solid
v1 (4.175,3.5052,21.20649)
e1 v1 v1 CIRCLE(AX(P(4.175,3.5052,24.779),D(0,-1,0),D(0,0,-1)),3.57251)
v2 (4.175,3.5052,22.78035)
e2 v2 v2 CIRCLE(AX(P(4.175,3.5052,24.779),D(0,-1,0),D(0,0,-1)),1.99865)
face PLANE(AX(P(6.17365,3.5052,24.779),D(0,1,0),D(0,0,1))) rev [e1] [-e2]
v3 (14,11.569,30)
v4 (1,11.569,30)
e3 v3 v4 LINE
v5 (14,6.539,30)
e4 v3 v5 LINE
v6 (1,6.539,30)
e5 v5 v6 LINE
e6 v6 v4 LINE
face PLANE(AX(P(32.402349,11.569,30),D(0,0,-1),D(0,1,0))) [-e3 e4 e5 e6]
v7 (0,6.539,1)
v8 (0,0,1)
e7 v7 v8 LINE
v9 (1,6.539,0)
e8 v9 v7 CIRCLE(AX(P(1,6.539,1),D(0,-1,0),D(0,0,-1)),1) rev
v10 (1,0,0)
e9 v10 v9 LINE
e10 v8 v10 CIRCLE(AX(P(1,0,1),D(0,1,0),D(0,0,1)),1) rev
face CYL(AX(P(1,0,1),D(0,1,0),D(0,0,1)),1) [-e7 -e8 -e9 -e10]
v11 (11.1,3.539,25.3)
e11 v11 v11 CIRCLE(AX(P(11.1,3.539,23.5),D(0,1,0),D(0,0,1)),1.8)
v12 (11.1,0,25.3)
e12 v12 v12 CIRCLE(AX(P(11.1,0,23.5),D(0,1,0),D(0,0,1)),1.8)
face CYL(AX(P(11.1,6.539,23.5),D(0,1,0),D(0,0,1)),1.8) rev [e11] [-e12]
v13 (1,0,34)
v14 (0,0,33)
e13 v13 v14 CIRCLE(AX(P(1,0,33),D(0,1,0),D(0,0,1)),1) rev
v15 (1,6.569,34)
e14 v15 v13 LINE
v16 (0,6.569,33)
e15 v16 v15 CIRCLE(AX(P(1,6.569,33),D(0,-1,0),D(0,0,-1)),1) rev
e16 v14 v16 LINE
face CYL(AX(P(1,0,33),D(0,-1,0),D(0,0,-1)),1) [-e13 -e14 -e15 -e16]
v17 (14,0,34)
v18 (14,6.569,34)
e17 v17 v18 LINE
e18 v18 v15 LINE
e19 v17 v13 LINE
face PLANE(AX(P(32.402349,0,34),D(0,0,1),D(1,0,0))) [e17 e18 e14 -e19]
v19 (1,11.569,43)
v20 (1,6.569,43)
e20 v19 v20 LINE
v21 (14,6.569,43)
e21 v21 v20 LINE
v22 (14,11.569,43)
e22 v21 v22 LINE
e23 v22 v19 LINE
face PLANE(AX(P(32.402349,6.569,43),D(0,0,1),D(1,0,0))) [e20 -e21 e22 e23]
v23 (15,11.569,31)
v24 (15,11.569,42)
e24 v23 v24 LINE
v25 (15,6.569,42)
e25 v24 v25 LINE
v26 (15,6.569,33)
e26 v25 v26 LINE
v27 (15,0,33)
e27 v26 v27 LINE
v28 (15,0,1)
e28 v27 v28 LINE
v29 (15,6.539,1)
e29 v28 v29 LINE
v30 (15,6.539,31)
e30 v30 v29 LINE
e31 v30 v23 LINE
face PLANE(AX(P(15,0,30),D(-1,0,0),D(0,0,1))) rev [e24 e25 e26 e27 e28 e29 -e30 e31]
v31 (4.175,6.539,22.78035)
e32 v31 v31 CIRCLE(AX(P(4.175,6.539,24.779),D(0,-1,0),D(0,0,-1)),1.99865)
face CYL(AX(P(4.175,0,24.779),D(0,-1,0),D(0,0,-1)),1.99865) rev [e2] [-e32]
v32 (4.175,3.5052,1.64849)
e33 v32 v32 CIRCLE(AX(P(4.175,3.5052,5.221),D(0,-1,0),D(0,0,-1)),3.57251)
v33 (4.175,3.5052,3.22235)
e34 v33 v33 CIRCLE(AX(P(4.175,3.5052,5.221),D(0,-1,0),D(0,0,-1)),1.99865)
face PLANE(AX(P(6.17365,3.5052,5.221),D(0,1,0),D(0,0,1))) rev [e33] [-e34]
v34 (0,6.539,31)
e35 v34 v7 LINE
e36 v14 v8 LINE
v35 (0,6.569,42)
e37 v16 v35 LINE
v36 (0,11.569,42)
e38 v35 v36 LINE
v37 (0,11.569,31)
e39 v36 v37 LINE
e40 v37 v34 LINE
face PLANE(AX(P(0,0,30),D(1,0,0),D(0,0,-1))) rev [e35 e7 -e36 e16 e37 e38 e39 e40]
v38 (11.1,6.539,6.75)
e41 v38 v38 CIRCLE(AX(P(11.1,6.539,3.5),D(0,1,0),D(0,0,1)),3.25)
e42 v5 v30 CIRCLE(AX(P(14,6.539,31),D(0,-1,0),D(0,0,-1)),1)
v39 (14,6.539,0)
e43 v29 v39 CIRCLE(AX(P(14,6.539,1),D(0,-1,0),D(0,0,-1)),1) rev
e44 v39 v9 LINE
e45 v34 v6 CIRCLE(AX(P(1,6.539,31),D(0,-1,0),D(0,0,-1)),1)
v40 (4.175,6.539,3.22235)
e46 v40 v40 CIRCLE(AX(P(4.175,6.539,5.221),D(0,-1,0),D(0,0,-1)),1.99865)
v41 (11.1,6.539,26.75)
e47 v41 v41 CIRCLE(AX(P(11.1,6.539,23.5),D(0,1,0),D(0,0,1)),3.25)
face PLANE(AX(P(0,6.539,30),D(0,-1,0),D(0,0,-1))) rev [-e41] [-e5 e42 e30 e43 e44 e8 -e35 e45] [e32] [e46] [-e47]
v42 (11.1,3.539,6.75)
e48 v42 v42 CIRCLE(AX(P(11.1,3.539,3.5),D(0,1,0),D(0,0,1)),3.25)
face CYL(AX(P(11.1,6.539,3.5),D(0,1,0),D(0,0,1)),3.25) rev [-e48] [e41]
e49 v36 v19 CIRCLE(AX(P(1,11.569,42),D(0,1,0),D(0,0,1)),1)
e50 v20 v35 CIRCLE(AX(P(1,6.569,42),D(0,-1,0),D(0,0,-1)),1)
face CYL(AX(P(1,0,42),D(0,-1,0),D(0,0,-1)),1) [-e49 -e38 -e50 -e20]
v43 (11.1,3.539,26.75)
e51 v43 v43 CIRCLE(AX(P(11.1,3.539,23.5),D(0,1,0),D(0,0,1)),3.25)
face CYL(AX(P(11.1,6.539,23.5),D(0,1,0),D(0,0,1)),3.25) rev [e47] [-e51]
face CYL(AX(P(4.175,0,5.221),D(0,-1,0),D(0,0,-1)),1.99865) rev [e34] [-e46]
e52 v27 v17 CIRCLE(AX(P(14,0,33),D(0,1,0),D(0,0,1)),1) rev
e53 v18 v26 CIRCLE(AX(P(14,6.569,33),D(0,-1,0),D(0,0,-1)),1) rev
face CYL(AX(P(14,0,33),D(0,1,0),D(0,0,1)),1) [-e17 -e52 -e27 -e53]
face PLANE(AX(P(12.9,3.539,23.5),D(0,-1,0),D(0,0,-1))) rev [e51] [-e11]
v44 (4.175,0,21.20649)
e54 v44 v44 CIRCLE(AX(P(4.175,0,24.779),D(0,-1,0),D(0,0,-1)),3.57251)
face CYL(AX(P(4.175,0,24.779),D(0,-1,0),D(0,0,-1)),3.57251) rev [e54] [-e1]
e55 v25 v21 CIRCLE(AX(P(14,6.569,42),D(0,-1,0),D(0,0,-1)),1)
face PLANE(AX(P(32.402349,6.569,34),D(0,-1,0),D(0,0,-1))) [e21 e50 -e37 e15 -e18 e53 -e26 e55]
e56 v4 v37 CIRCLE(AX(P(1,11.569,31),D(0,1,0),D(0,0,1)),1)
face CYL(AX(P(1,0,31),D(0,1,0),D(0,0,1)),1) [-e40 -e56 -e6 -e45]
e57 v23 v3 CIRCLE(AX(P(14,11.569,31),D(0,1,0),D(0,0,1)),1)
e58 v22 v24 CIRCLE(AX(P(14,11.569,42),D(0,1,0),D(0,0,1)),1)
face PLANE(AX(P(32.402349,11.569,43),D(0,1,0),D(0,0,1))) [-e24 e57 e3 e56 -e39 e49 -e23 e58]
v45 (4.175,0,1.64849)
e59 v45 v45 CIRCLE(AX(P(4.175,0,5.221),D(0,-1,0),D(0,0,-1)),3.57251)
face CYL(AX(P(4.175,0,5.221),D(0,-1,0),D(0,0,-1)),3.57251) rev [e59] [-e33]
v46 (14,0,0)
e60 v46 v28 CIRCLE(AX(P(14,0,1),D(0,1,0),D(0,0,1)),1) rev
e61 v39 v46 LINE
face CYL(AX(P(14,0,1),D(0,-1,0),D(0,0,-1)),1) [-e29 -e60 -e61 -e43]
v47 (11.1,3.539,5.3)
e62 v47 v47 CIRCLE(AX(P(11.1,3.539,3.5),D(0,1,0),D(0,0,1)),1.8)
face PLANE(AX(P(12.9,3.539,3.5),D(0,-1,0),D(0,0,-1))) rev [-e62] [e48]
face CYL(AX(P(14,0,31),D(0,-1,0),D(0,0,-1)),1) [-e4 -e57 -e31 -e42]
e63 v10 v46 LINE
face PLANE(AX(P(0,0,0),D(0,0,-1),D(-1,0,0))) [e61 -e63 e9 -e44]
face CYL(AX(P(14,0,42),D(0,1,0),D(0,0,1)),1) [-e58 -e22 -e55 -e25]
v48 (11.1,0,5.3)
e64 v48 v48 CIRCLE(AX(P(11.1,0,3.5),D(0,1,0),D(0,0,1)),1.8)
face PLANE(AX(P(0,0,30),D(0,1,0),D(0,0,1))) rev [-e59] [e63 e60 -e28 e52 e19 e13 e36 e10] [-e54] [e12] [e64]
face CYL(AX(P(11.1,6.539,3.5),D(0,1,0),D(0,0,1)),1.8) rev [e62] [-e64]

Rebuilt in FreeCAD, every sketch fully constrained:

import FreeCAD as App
import Part
import Sketcher


def edges_at(feature, points):
    """Names of the edges that pass closest to the given points."""
    edges = feature.Shape.Edges
    near = lambda p: min(range(len(edges)), key=lambda i: edges[i].distToShape(Part.Vertex(*p))[0])
    return sorted({f"Edge{near(p) + 1}" for p in points})


def add_polygon(sketch, points):
    """Adds a closed chain of lines whose ends are joined by coincident constraints."""
    first, n = sketch.GeometryCount, len(points)
    for a, b in zip(points, points[1:] + points[:1]):
        sketch.addGeometry(Part.LineSegment(App.Vector(*a, 0), App.Vector(*b, 0)), False)
    for i in range(n):
        sketch.addConstraint(Sketcher.Constraint("Coincident", first + i, 2, first + (i + 1) % n, 1))

doc = App.newDocument("Part")
body = doc.addObject("PartDesign::Body", "Body")

# Sketch on XY plane
sketch1 = doc.addObject("Sketcher::SketchObject", "Sketch")
body.addObject(sketch1)
sketch1.AttachmentSupport = (doc.XY_Plane, [""])
sketch1.MapMode = "FlatFace"
add_polygon(sketch1, [(0, 7), (0, 0), (15, 0), (15, 7)])  # lines 0-3
sketch1.addConstraint([
    Sketcher.Constraint("Vertical", 0),
    Sketcher.Constraint("Horizontal", 1),
    Sketcher.Constraint("Vertical", 2),
    Sketcher.Constraint("Horizontal", 3),
    Sketcher.Constraint("Coincident", 0, 2, -1, 1),
    Sketcher.Constraint("DistanceX", 1, 1, 1, 2, 15.0),
    Sketcher.Constraint("DistanceY", 0, 2, 0, 1, 6.539),
])
pad1 = doc.addObject("PartDesign::Pad", "Pad")
body.addObject(pad1)
pad1.Profile = sketch1
pad1.Length = 30

# Sketch on XZ plane
sketch2 = doc.addObject("Sketcher::SketchObject", "Sketch001")
body.addObject(sketch2)
sketch2.AttachmentSupport = (doc.XZ_Plane, [""])
sketch2.MapMode = "FlatFace"
sketch2.AttachmentOffset = App.Placement(App.Vector(0, 0, -6.539), App.Rotation())
sketch2.addGeometry([
    Part.Circle(App.Vector(11.1, 3.5, 0), App.Vector(0, 0, 1), 1.8),
    Part.Circle(App.Vector(11.1, 23.5, 0), App.Vector(0, 0, 1), 1.8),
], False)
sketch2.addConstraint([
    Sketcher.Constraint("Equal", 0, 1),
    Sketcher.Constraint("Vertical", 0, 3, 1, 3),
    Sketcher.Constraint("Diameter", 0, 3.6),
    Sketcher.Constraint("DistanceY", 0, 3, 1, 3, 20.0),
    Sketcher.Constraint("DistanceX", -1, 1, 0, 3, 11.1),
    Sketcher.Constraint("DistanceY", -1, 1, 0, 3, 3.5),
])
doc.recompute()
hole = doc.addObject("PartDesign::Hole", "Hole")
body.addObject(hole)
hole.Profile = sketch2
hole.ThreadType = "None"
hole.Diameter = 3.6
hole.DepthType = "ThroughAll"
hole.HoleCutType = "Counterbore"
hole.HoleCutDiameter = 6.5
hole.HoleCutDepth = 3
hole.Reversed = True

# Sketch on XZ plane
sketch3 = doc.addObject("Sketcher::SketchObject", "Sketch002")
body.addObject(sketch3)
sketch3.AttachmentSupport = (doc.XZ_Plane, [""])
sketch3.MapMode = "FlatFace"
sketch3.addGeometry([
    Part.Circle(App.Vector(4.2, 24.8, 0), App.Vector(0, 0, 1), 2),
    Part.Circle(App.Vector(4.2, 5.2, 0), App.Vector(0, 0, 1), 2),
], False)
sketch3.addConstraint([
    Sketcher.Constraint("Equal", 0, 1),
    Sketcher.Constraint("Vertical", 0, 3, 1, 3),
    Sketcher.Constraint("Diameter", 0, 3.9973),
    Sketcher.Constraint("DistanceX", -1, 1, 0, 3, 4.175),
    Sketcher.Constraint("DistanceY", -1, 1, 0, 3, 24.779),
    Sketcher.Constraint("DistanceY", -1, 1, 1, 3, 5.221),
])
doc.recompute()
hole2 = doc.addObject("PartDesign::Hole", "Hole001")
body.addObject(hole2)
hole2.Profile = sketch3
hole2.ThreadType = "None"
hole2.Diameter = 3.9973
hole2.DepthType = "ThroughAll"
hole2.HoleCutType = "Counterbore"
hole2.HoleCutDiameter = 7.14502
hole2.HoleCutDepth = 3.5052

# Sketch on YZ plane
sketch4 = doc.addObject("Sketcher::SketchObject", "Sketch003")
body.addObject(sketch4)
sketch4.AttachmentSupport = (doc.YZ_Plane, [""])
sketch4.MapMode = "FlatFace"
add_polygon(sketch4, [(0, 30), (0, 34), (6.6, 34), (6.6, 43), (11.6, 43), (11.6, 30)])  # lines 0-5
sketch4.addConstraint([
    Sketcher.Constraint("Vertical", 0),
    Sketcher.Constraint("Horizontal", 1),
    Sketcher.Constraint("Vertical", 2),
    Sketcher.Constraint("Horizontal", 3),
    Sketcher.Constraint("Vertical", 4),
    Sketcher.Constraint("Horizontal", 5),
    Sketcher.Constraint("PointOnObject", 0, 2, -2),
    Sketcher.Constraint("DistanceX", 3, 1, 3, 2, 5.0),
    Sketcher.Constraint("DistanceY", 0, 1, 0, 2, 4.0),
    Sketcher.Constraint("DistanceY", 2, 1, 2, 2, 9.0),
    Sketcher.Constraint("DistanceY", -1, 1, 0, 2, 34.0),
    Sketcher.Constraint("DistanceX", 1, 1, 1, 2, 6.569),
])
pad2 = doc.addObject("PartDesign::Pad", "Pad001")
body.addObject(pad2)
pad2.Profile = sketch4
pad2.Length = 15
doc.recompute()

fillet = doc.addObject("PartDesign::Fillet", "Fillet")
body.addObject(fillet)
fillet.Base = (pad2, edges_at(pad2, [
    (0, 9.054, 30),
    (0, 3.284, 34),
    (0, 9.069, 43),
    (15, 9.054, 30),
    (15, 9.069, 43),
    (15, 3.284, 34),
    (15, 3.269, 0),
    (0, 3.269, 0),
]))
fillet.Radius = 1

doc.recompute()
